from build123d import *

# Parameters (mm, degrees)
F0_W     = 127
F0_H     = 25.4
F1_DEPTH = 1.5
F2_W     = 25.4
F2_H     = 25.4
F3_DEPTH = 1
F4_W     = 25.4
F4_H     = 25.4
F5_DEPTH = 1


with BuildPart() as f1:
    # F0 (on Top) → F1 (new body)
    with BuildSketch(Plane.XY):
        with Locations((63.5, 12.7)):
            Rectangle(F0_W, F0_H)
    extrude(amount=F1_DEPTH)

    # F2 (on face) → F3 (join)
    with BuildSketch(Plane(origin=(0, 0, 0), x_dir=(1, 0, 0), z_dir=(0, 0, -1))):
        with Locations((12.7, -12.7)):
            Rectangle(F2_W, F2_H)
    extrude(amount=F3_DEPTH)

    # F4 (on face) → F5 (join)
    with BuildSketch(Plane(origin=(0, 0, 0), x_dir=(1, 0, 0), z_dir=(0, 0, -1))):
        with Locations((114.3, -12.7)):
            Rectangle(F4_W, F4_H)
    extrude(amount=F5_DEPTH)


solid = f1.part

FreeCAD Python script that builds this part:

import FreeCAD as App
import Part
import Sketcher
Q = App.Units.Quantity


def add_polygon(sketch, points):
    """Adds a closed chain of lines whose ends are joined by coincident constraints."""
    first, n = sketch.GeometryCount, len(points)
    for a, b in zip(points, points[1:] + points[:1]):
        sketch.addGeometry(Part.LineSegment(App.Vector(*a, 0), App.Vector(*b, 0)), False)
    for i in range(n):
        sketch.addConstraint(Sketcher.Constraint("Coincident", first + i, 2, first + (i + 1) % n, 1))

doc = App.newDocument("Part")
body = doc.addObject("PartDesign::Body", "Body")

sketch1 = body.newObject("Sketcher::SketchObject", "Sketch")
sketch1.AttachmentSupport = (doc.getObject("XY_Plane"), [""])
sketch1.MapMode = "FlatFace"
add_polygon(sketch1, [(0, 25.4), (0, 0), (127, 0), (127, 25.4)])
sketch1.addConstraint([
    Sketcher.Constraint("Vertical", 0),
    Sketcher.Constraint("Horizontal", 1),
    Sketcher.Constraint("Vertical", 2),
    Sketcher.Constraint("Horizontal", 3),
    Sketcher.Constraint("Coincident", 0, 2, -1, 1),
    Sketcher.Constraint("DistanceX", 1, 1, 1, 2, Q("127 mm")),
    Sketcher.Constraint("DistanceY", 0, 2, 0, 1, Q("25.4 mm")),
])
pad1 = body.newObject("PartDesign::Pad", "Pad")
pad1.Profile = sketch1
pad1.Length = 1.5

sketch2 = body.newObject("Sketcher::SketchObject", "Sketch001")
sketch2.AttachmentSupport = (doc.getObject("XY_Plane"), [""])
sketch2.MapMode = "FlatFace"
add_polygon(sketch2, [(0, 0), (0, 25.4), (25.4, 25.4), (25.4, 0)])
sketch2.addConstraint([
    Sketcher.Constraint("Vertical", 0),
    Sketcher.Constraint("Horizontal", 1),
    Sketcher.Constraint("Vertical", 2),
    Sketcher.Constraint("Horizontal", 3),
    Sketcher.Constraint("Coincident", 3, 2, -1, 1),
    Sketcher.Constraint("Equal", 3, 0),
    Sketcher.Constraint("DistanceX", 1, 1, 1, 2, Q("25.4 mm")),
])
pad2 = body.newObject("PartDesign::Pad", "Pad001")
pad2.Profile = sketch2
pad2.Length = 1
pad2.Reversed = True

sketch3 = body.newObject("Sketcher::SketchObject", "Sketch002")
sketch3.AttachmentSupport = (doc.getObject("XY_Plane"), [""])
sketch3.MapMode = "FlatFace"
add_polygon(sketch3, [(101.6, 0), (101.6, 25.4), (127, 25.4), (127, 0)])
sketch3.addConstraint([
    Sketcher.Constraint("Vertical", 0),
    Sketcher.Constraint("Horizontal", 1),
    Sketcher.Constraint("Vertical", 2),
    Sketcher.Constraint("Horizontal", 3),
    Sketcher.Constraint("PointOnObject", 2, 2, -1),
    Sketcher.Constraint("Equal", 3, 0),
    Sketcher.Constraint("DistanceX", 1, 1, 1, 2, Q("25.4 mm")),
    Sketcher.Constraint("DistanceX", -1, 1, 1, 2, Q("127 mm")),
])
pad3 = body.newObject("PartDesign::Pad", "Pad002")
pad3.Profile = sketch3
pad3.Length = 1
pad3.Reversed = True

doc.recompute()
